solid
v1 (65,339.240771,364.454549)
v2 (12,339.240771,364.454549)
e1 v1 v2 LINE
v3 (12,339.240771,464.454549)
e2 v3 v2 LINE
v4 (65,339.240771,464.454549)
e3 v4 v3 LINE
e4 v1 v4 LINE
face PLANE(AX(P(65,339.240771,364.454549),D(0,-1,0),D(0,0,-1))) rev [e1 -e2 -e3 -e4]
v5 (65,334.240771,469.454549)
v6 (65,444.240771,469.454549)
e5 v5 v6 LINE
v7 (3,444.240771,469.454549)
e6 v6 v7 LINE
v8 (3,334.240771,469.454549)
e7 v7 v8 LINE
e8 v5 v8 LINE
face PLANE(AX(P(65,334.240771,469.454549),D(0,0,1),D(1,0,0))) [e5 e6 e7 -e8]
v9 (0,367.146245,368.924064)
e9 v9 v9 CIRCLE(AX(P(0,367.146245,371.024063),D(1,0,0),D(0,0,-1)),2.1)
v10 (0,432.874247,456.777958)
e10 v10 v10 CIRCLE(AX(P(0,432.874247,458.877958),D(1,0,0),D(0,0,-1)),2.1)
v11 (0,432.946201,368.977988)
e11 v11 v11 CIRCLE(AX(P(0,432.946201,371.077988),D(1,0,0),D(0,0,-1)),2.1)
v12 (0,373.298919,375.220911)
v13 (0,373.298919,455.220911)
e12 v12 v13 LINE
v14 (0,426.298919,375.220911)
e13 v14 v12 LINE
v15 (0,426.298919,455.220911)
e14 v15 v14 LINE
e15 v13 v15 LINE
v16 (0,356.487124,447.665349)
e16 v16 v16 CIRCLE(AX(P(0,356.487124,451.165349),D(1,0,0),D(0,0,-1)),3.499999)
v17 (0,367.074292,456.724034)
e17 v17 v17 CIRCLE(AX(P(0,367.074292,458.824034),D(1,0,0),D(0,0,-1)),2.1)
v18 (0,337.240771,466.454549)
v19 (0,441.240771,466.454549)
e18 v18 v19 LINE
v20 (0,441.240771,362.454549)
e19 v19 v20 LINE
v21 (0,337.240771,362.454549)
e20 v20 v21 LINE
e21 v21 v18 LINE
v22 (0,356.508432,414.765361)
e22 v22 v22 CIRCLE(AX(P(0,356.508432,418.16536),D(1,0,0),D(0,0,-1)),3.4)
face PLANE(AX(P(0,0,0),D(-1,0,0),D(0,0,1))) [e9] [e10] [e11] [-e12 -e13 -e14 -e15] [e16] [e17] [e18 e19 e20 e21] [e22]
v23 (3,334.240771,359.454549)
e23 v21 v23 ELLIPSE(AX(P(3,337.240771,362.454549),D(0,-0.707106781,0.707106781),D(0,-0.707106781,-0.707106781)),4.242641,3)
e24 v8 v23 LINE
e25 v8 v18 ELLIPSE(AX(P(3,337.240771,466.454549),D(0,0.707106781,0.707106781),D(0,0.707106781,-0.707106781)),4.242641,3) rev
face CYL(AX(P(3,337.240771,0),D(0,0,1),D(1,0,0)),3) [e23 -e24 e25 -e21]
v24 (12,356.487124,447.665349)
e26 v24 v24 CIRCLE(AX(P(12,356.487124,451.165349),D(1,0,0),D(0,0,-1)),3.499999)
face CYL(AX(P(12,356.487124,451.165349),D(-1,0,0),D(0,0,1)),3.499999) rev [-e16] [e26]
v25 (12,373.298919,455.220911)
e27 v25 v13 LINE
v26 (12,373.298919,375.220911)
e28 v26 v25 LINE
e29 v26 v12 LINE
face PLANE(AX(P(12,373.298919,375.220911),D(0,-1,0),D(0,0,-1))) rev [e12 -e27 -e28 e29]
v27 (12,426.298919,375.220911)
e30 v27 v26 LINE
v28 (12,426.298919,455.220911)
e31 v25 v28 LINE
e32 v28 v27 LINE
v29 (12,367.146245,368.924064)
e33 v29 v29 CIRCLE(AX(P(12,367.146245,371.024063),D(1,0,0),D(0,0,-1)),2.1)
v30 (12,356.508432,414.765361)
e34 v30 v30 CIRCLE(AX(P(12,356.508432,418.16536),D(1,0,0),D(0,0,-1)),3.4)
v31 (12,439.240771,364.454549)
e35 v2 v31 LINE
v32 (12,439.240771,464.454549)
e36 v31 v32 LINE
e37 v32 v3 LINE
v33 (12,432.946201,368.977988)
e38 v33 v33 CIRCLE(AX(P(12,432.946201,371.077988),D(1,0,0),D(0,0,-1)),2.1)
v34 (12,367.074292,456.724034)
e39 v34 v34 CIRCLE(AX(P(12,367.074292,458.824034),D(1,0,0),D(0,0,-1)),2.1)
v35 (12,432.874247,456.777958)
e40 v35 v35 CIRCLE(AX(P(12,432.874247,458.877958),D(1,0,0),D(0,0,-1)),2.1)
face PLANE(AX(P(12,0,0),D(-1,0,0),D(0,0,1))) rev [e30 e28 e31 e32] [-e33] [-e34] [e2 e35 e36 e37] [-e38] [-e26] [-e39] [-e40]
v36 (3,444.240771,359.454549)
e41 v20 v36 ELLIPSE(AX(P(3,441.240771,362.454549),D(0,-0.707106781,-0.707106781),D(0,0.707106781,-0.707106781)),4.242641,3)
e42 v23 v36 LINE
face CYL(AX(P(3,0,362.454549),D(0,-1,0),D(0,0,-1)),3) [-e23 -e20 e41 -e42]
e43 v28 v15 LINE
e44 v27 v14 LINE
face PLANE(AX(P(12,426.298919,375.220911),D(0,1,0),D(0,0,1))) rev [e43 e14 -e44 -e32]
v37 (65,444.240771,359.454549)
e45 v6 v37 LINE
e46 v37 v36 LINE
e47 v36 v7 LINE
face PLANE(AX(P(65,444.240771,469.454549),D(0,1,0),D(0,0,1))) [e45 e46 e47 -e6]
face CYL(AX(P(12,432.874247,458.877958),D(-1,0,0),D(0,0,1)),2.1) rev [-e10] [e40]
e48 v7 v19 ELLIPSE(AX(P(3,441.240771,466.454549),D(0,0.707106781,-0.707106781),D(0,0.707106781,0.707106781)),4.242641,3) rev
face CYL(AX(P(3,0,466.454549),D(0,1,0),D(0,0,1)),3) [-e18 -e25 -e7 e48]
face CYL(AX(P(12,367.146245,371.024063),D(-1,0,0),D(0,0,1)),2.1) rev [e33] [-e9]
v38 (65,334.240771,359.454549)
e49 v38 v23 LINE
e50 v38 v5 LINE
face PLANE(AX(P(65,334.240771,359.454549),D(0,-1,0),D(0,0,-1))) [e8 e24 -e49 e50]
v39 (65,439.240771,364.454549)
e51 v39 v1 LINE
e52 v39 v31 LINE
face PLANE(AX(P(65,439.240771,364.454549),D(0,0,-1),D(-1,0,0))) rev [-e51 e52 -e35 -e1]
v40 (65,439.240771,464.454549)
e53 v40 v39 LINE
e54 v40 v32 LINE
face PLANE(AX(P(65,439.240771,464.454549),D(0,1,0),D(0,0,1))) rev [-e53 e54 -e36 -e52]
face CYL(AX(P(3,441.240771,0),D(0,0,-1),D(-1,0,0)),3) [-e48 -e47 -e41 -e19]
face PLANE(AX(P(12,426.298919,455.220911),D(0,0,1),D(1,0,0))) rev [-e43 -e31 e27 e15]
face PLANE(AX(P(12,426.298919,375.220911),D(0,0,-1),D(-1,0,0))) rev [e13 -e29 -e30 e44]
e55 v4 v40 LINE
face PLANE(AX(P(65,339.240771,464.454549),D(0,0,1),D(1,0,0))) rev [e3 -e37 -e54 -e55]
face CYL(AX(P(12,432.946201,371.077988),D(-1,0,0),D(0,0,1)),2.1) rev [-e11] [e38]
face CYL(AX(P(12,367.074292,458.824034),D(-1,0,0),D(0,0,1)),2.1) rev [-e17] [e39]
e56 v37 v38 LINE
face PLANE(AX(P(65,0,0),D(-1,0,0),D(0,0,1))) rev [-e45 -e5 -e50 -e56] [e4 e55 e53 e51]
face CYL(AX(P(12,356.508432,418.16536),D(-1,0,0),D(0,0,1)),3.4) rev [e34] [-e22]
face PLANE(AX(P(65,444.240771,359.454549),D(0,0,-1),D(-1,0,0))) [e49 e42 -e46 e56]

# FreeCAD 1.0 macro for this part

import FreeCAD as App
import Part
import Sketcher


def edges_at(feature, points):
    """Names of the edges that pass closest to the given points."""
    edges = feature.Shape.Edges
    near = lambda p: min(range(len(edges)), key=lambda i: edges[i].distToShape(Part.Vertex(*p))[0])
    return sorted({f"Edge{near(p) + 1}" for p in points})


def add_polygon(sketch, points):
    """Adds a closed chain of lines whose ends are joined by coincident constraints."""
    first, n = sketch.GeometryCount, len(points)
    for a, b in zip(points, points[1:] + points[:1]):
        sketch.addGeometry(Part.LineSegment(App.Vector(*a, 0), App.Vector(*b, 0)), False)
    for i in range(n):
        sketch.addConstraint(Sketcher.Constraint("Coincident", first + i, 2, first + (i + 1) % n, 1))

doc = App.newDocument("Part")
params = doc.addObject("Spreadsheet::Sheet", "Params")
for row, (alias, value) in enumerate([
    ("sketch1_diameter", "6.999999 mm"),
    ("sketch1_diameter2", "4.199999 mm"),
    ("sketch1_diameter3", "6.8 mm"),
    ("sketch1_width", "100 mm"),
    ("pad1_length", "12 mm"),
    ("sketch2_width", "53 mm"),
    ("sketch2_height", "80 mm"),
    ("pocket1_length", "12 mm"),
    ("sketch3_width", "110 mm"),
    ("sketch3_width2", "100 mm"),
    ("pad2_length", "65 mm"),
    ("fillet_radius", "3 mm"),
], start=1):
    params.set(f"A{row}", alias)
    params.set(f"B{row}", "=" + value)
    params.setAlias(f"B{row}", alias)

body = doc.addObject("PartDesign::Body", "Body")

# Sketch on YZ plane
sketch1 = body.newObject("Sketcher::SketchObject", "Sketch")
sketch1.AttachmentSupport = (doc.getObject("YZ_Plane"), [""])
sketch1.MapMode = "FlatFace"
add_polygon(sketch1, [(439.240771, 464.454549), (339.240771, 464.454549), (339.240771, 364.454549), (439.240771, 364.454549)])  # lines 0-3
sketch1.addGeometry(Part.Circle(App.Vector(356.487124, 451.165349, 0), App.Vector(0, 0, 1), 3.499999), False)  # 4
sketch1.addGeometry(Part.Circle(App.Vector(367.074292, 458.824034, 0), App.Vector(0, 0, 1), 2.1), False)  # 5
sketch1.addGeometry(Part.Circle(App.Vector(356.508432, 418.16536, 0), App.Vector(0, 0, 1), 3.4), False)  # 6
sketch1.addGeometry(Part.Circle(App.Vector(367.146245, 371.024063, 0), App.Vector(0, 0, 1), 2.1), False)  # 7
sketch1.addGeometry(Part.Circle(App.Vector(432.874247, 458.877958, 0), App.Vector(0, 0, 1), 2.1), False)  # 8
sketch1.addGeometry(Part.Circle(App.Vector(432.946201, 371.077988, 0), App.Vector(0, 0, 1), 2.1), False)  # 9
sketch1.addConstraint(Sketcher.Constraint("Horizontal", 0))
sketch1.addConstraint(Sketcher.Constraint("Vertical", 1))
sketch1.addConstraint(Sketcher.Constraint("Horizontal", 2))
sketch1.addConstraint(Sketcher.Constraint("Vertical", 3))
sketch1.addConstraint(Sketcher.Constraint("Equal", 5, 7))
sketch1.addConstraint(Sketcher.Constraint("Equal", 7, 8))
sketch1.addConstraint(Sketcher.Constraint("Equal", 8, 9))
sketch1.addConstraint(Sketcher.Constraint("Equal", 2, 1))
sketch1.addConstraint(Sketcher.Constraint("Diameter", 4, 6.999999))
sketch1.addConstraint(Sketcher.Constraint("Diameter", 5, 4.199999))
sketch1.addConstraint(Sketcher.Constraint("Diameter", 6, 6.8))
sketch1.addConstraint(Sketcher.Constraint("DistanceX", 0, 2, 0, 1, 100.0))
sketch1.addConstraint(Sketcher.Constraint("DistanceX", -1, 1, 9, 3, 432.946201))
sketch1.addConstraint(Sketcher.Constraint("DistanceY", 4, 3, 0, 2, 13.2892))
sketch1.addConstraint(Sketcher.Constraint("DistanceY", -1, 1, 4, 3, 451.165349))
sketch1.addConstraint(Sketcher.Constraint("DistanceX", -1, 1, 5, 3, 367.074292))
sketch1.addConstraint(Sketcher.Constraint("DistanceX", -1, 1, 6, 3, 356.508432))
sketch1.addConstraint(Sketcher.Constraint("DistanceY", -1, 1, 6, 3, 418.16536))
sketch1.addConstraint(Sketcher.Constraint("DistanceY", -1, 1, 8, 3, 458.877958))
sketch1.addConstraint(Sketcher.Constraint("DistanceX", -1, 1, 0, 2, 339.240771))
sketch1.addConstraint(Sketcher.Constraint("DistanceX", 4, 3, 7, 3, 10.659121))
sketch1.addConstraint(Sketcher.Constraint("DistanceY", 7, 3, 5, 3, 87.799971))
sketch1.addConstraint(Sketcher.Constraint("DistanceY", 9, 3, 8, 3, 87.799971))
sketch1.addConstraint(Sketcher.Constraint("DistanceX", -1, 1, 4, 3, 356.487124))
sketch1.addConstraint(Sketcher.Constraint("DistanceY", -1, 1, 5, 3, 458.824034))
sketch1.addConstraint(Sketcher.Constraint("DistanceX", -1, 1, 8, 3, 432.874247))
sketch1.setExpression("Constraints[12]", "Params.sketch1_diameter")
sketch1.setExpression("Constraints[13]", "Params.sketch1_diameter2")
sketch1.setExpression("Constraints[14]", "Params.sketch1_diameter3")
sketch1.setExpression("Constraints[15]", "Params.sketch1_width")
pad1 = body.newObject("PartDesign::Pad", "Pad")
pad1.Profile = sketch1
pad1.setExpression("Length", "Params.pad1_length")

# Sketch on YZ plane
sketch2 = body.newObject("Sketcher::SketchObject", "Sketch001")
sketch2.AttachmentSupport = (doc.getObject("YZ_Plane"), [""])
sketch2.MapMode = "FlatFace"
add_polygon(sketch2, [(426.298919, 375.220911), (373.298919, 375.220911), (373.298919, 455.220911), (426.298919, 455.220911)])  # lines 0-3
sketch2.addConstraint(Sketcher.Constraint("Horizontal", 0))
sketch2.addConstraint(Sketcher.Constraint("Vertical", 1))
sketch2.addConstraint(Sketcher.Constraint("Horizontal", 2))
sketch2.addConstraint(Sketcher.Constraint("Vertical", 3))
sketch2.addConstraint(Sketcher.Constraint("DistanceX", 0, 2, 0, 1, 53.0))
sketch2.addConstraint(Sketcher.Constraint("DistanceY", 1, 1, 1, 2, 80.0))
sketch2.addConstraint(Sketcher.Constraint("DistanceX", -1, 1, 0, 2, 373.298919))
sketch2.addConstraint(Sketcher.Constraint("DistanceY", -1, 1, 0, 2, 375.220911))
sketch2.setExpression("Constraints[8]", "Params.sketch2_width")
sketch2.setExpression("Constraints[9]", "Params.sketch2_height")
pocket1 = body.newObject("PartDesign::Pocket", "Pocket")
pocket1.Profile = sketch2
pocket1.setExpression("Length", "Params.pocket1_length")
pocket1.Reversed = True

# Sketch on YZ plane
sketch3 = body.newObject("Sketcher::SketchObject", "Sketch002")
sketch3.AttachmentSupport = (doc.getObject("YZ_Plane"), [""])
sketch3.MapMode = "FlatFace"
add_polygon(sketch3, [(444.240771, 359.454549), (334.240771, 359.454549), (334.240771, 469.454549), (444.240771, 469.454549)])  # lines 0-3
add_polygon(sketch3, [(339.240771, 464.454549), (339.240771, 364.454549), (439.240771, 364.454549), (439.240771, 464.454549)])  # lines 4-7
sketch3.addConstraint(Sketcher.Constraint("Horizontal", 0))
sketch3.addConstraint(Sketcher.Constraint("Vertical", 1))
sketch3.addConstraint(Sketcher.Constraint("Horizontal", 2))
sketch3.addConstraint(Sketcher.Constraint("Vertical", 3))
sketch3.addConstraint(Sketcher.Constraint("Vertical", 4))
sketch3.addConstraint(Sketcher.Constraint("Horizontal", 5))
sketch3.addConstraint(Sketcher.Constraint("Vertical", 6))
sketch3.addConstraint(Sketcher.Constraint("Horizontal", 7))
sketch3.addConstraint(Sketcher.Constraint("Equal", 2, 1))
sketch3.addConstraint(Sketcher.Constraint("Equal", 7, 4))
sketch3.addConstraint(Sketcher.Constraint("DistanceX", 0, 2, 0, 1, 110.0))
sketch3.addConstraint(Sketcher.Constraint("DistanceX", 5, 1, 5, 2, 100.0))
sketch3.addConstraint(Sketcher.Constraint("DistanceX", 0, 2, 4, 2, 5.0))
sketch3.addConstraint(Sketcher.Constraint("DistanceY", 0, 2, 4, 2, 5.0))
sketch3.addConstraint(Sketcher.Constraint("DistanceX", -1, 1, 0, 2, 334.240771))
sketch3.addConstraint(Sketcher.Constraint("DistanceY", -1, 1, 0, 2, 359.454549))
sketch3.setExpression("Constraints[18]", "Params.sketch3_width")
sketch3.setExpression("Constraints[19]", "Params.sketch3_width2")
pad2 = body.newObject("PartDesign::Pad", "Pad001")
pad2.Profile = sketch3
pad2.setExpression("Length", "Params.pad2_length")
doc.recompute()

fillet = body.newObject("PartDesign::Fillet", "Fillet")
fillet.Base = (pad2, edges_at(pad2, [
    (0, 444.241, 414.455),
    (0, 389.241, 359.455),
    (0, 334.241, 414.455),
    (0, 389.241, 469.455),
]))
fillet.setExpression("Radius", "Params.fillet_radius")

doc.recompute()
